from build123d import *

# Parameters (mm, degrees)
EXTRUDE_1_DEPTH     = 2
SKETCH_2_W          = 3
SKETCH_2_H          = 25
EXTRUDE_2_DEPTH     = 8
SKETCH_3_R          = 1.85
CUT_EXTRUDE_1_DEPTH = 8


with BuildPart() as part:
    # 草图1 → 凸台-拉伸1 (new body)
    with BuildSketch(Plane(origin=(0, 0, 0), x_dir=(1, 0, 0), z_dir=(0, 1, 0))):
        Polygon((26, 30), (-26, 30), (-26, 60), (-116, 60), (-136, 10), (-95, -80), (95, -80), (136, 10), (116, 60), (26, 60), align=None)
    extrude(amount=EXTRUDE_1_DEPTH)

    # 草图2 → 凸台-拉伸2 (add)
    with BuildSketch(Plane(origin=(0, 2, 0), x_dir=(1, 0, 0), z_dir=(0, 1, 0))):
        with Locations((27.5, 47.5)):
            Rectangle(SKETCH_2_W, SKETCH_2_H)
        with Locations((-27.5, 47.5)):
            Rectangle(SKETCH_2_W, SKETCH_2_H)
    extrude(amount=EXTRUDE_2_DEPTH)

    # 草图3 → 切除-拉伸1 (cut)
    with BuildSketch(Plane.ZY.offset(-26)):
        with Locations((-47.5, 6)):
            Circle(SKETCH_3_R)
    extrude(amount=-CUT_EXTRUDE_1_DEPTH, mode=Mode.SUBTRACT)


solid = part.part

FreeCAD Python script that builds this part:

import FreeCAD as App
import Part
import Sketcher

V = App.Vector


def add_polygon(sketch, points):
    """Adds a closed chain of lines whose ends are joined by coincident constraints."""
    first, n = sketch.GeometryCount, len(points)
    for a, b in zip(points, points[1:] + points[:1]):
        sketch.addGeometry(Part.LineSegment(App.Vector(*a, 0), App.Vector(*b, 0)), False)
    for i in range(n):
        sketch.addConstraint(Sketcher.Constraint("Coincident", first + i, 2, first + (i + 1) % n, 1))

doc = App.newDocument("Part")
params = doc.addObject("Spreadsheet::Sheet", "Params")
for row, (alias, value) in enumerate([
    ("sketch1_width", "52 mm"),
    ("sketch1_width2", "90 mm"),
    ("sketch1_width3", "190 mm"),
    ("sketch1_height", "30 mm"),
    ("pad1_length", "2 mm"),
    ("sketch2_width", "3 mm"),
    ("sketch2_height", "25 mm"),
    ("pad2_length", "8 mm"),
    ("sketch3_diameter", "3.7 mm"),
    ("pocket1_length", "8 mm"),
], start=1):
    params.set(f"A{row}", alias)
    params.set(f"B{row}", "=" + value)
    params.setAlias(f"B{row}", alias)

body = doc.addObject("PartDesign::Body", "Body")

sketch1 = doc.addObject("Sketcher::SketchObject", "Sketch")
body.addObject(sketch1)
sketch1.AttachmentSupport = (doc.XZ_Plane, [""])
sketch1.MapMode = "FlatFace"
add_polygon(sketch1, [(26, -30), (-26, -30), (-26, -60), (-116, -60), (-136, -10), (-95, 80), (95, 80), (136, -10), (116, -60), (26, -60)])
sketch1.addConstraint([
    Sketcher.Constraint("Horizontal", 0),
    Sketcher.Constraint("Vertical", 1),
    Sketcher.Constraint("Horizontal", 2),
    Sketcher.Constraint("Horizontal", 5),
    Sketcher.Constraint("Horizontal", 8),
    Sketcher.Constraint("Vertical", 9),
    Sketcher.Constraint("Symmetric", 3, 2, 6, 2, -2),
    Sketcher.Constraint("Symmetric", 2, 2, 7, 2, -2),
    Sketcher.Constraint("Equal", 2, 8),
    Sketcher.Constraint("Equal", 4, 6),
    Sketcher.Constraint("DistanceX", 0, 2, 0, 1, 52.0),
    Sketcher.Constraint("DistanceX", 2, 2, 2, 1, 90.0),
    Sketcher.Constraint("DistanceX", 5, 1, 5, 2, 190.0),
    Sketcher.Constraint("DistanceY", 1, 2, 1, 1, 30.0),
    Sketcher.Constraint("DistanceY", 0, 2, -1, 1, 30.0),
    Sketcher.Constraint("DistanceX", 3, 2, -1, 1, 136.0),
    Sketcher.Constraint("DistanceY", 3, 2, -1, 1, 10.0),
    Sketcher.Constraint("DistanceY", -1, 1, 4, 2, 80.0),
])
sketch1.setExpression("Constraints[20]", "Params.sketch1_width")
sketch1.setExpression("Constraints[21]", "Params.sketch1_width2")
sketch1.setExpression("Constraints[22]", "Params.sketch1_width3")
sketch1.setExpression("Constraints[23]", "Params.sketch1_height")
pad1 = doc.addObject("PartDesign::Pad", "Pad")
body.addObject(pad1)
pad1.Profile = sketch1
pad1.setExpression("Length", "Params.pad1_length")
pad1.Reversed = True

sketch2 = doc.addObject("Sketcher::SketchObject", "Sketch001")
body.addObject(sketch2)
sketch2.AttachmentSupport = (doc.XZ_Plane, [""])
sketch2.MapMode = "FlatFace"
sketch2.AttachmentOffset = App.Placement(V(0, 0, -2), App.Rotation())
add_polygon(sketch2, [(26, -60), (26, -35), (29, -35), (29, -60)])
add_polygon(sketch2, [(-29, -60), (-29, -35), (-26, -35), (-26, -60)])
sketch2.addConstraint([
    Sketcher.Constraint("Vertical", 0),
    Sketcher.Constraint("Horizontal", 1),
    Sketcher.Constraint("Vertical", 2),
    Sketcher.Constraint("Horizontal", 3),
    Sketcher.Constraint("Vertical", 4),
    Sketcher.Constraint("Horizontal", 5),
    Sketcher.Constraint("Vertical", 6),
    Sketcher.Constraint("Horizontal", 7),
    Sketcher.Constraint("Symmetric", 1, 2, 4, 2, -2),
    Sketcher.Constraint("Symmetric", 3, 2, 6, 2, -2),
    Sketcher.Constraint("DistanceX", 1, 1, 1, 2, 3.0),
    Sketcher.Constraint("DistanceY", 0, 1, 0, 2, 25.0),
    Sketcher.Constraint("DistanceX", -1, 1, 0, 2, 26.0),
    Sketcher.Constraint("DistanceY", 0, 2, -1, 1, 35.0),
])
sketch2.setExpression("Constraints[18]", "Params.sketch2_width")
sketch2.setExpression("Constraints[19]", "Params.sketch2_height")
pad2 = doc.addObject("PartDesign::Pad", "Pad001")
body.addObject(pad2)
pad2.Profile = sketch2
pad2.setExpression("Length", "Params.pad2_length")
pad2.Reversed = True

sketch3 = doc.addObject("Sketcher::SketchObject", "Sketch002")
body.addObject(sketch3)
sketch3.AttachmentSupport = (doc.YZ_Plane, [""])
sketch3.MapMode = "FlatFace"
sketch3.AttachmentOffset = App.Placement(V(0, 0, 26), App.Rotation())
sketch3.addGeometry(Part.Circle(V(6, -47.5, 0), V(0, 0, 1), 1.9), False)
sketch3.addConstraint([
    Sketcher.Constraint("Diameter", 0, 3.7),
    Sketcher.Constraint("DistanceX", -1, 1, 0, 3, 6.0),
    Sketcher.Constraint("DistanceY", 0, 3, -1, 1, 47.5),
])
sketch3.setExpression("Constraints[0]", "Params.sketch3_diameter")
pocket1 = doc.addObject("PartDesign::Pocket", "Pocket")
body.addObject(pocket1)
pocket1.Profile = sketch3
pocket1.setExpression("Length", "Params.pocket1_length")
pocket1.Reversed = True

doc.recompute()
